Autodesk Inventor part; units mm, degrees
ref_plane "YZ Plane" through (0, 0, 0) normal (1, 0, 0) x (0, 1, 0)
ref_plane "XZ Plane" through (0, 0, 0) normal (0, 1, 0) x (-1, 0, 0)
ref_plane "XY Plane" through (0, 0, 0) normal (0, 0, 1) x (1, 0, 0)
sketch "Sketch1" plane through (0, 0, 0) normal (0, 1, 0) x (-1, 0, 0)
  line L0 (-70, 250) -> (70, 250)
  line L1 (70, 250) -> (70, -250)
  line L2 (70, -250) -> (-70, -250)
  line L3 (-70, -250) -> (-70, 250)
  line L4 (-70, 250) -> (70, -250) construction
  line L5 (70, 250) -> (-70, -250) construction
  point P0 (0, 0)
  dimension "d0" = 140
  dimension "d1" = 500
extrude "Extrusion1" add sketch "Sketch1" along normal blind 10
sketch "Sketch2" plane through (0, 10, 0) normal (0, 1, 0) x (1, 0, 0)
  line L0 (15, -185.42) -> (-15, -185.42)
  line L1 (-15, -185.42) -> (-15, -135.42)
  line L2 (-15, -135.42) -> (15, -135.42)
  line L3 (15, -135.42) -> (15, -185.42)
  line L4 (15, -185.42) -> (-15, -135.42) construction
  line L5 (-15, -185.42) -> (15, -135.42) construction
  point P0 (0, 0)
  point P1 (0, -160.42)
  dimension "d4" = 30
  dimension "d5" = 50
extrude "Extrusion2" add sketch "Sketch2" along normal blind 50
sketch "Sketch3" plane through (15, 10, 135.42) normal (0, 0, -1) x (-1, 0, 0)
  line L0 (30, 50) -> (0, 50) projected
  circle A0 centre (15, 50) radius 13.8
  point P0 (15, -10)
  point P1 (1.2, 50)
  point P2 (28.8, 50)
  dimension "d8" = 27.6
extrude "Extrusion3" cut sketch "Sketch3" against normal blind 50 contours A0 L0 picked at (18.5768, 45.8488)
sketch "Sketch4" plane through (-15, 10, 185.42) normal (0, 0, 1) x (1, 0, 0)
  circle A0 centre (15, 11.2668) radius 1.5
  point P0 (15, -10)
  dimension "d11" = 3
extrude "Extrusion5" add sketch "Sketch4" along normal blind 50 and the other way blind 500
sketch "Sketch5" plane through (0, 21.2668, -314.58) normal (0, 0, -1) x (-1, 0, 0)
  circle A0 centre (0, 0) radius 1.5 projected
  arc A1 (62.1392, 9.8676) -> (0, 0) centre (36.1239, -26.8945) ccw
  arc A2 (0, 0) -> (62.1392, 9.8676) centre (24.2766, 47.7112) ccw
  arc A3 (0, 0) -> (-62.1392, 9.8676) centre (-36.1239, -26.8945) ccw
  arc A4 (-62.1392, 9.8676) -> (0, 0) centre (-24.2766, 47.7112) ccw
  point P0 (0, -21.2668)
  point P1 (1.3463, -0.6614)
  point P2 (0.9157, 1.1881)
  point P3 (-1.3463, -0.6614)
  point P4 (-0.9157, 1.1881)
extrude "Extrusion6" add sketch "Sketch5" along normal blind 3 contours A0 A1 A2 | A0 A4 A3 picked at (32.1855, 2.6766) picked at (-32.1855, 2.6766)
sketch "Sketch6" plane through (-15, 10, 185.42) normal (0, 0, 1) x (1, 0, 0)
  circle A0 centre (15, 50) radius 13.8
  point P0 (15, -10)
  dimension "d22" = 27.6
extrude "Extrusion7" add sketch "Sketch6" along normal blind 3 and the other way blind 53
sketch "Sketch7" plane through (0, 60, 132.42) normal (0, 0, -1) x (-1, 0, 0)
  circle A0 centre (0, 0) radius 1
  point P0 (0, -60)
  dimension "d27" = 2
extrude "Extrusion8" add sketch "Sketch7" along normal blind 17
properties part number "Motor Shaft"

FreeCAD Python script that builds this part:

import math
import FreeCAD as App
import Part
import Sketcher
from FreeCAD import Vector


def add_polygon(sketch, points):
    """Adds a closed chain of lines whose ends are joined by coincident constraints."""
    first, n = sketch.GeometryCount, len(points)
    for a, b in zip(points, points[1:] + points[:1]):
        sketch.addGeometry(Part.LineSegment(App.Vector(*a, 0), App.Vector(*b, 0)), False)
    for i in range(n):
        sketch.addConstraint(Sketcher.Constraint("Coincident", first + i, 2, first + (i + 1) % n, 1))

doc = App.newDocument("Part")
params = doc.addObject("Spreadsheet::Sheet", "Params")
for row, (alias, value) in enumerate([
    ("sketch1_width", "140 mm"),
    ("sketch1_height", "500 mm"),
    ("pad1_length", "10 mm"),
    ("sketch2_width", "30 mm"),
    ("sketch2_height", "50 mm"),
    ("pad2_length", "50 mm"),
    ("sketch3_radius", "13.8 mm"),
    ("pocket1_length", "50 mm"),
    ("sketch4_diameter", "3 mm"),
    ("pad3_length", "50 mm"),
    ("pad3_length2", "500 mm"),
    ("sketch5_radius", "1.5 mm"),
    ("pad4_length", "3 mm"),
    ("sketch6_diameter", "27.6 mm"),
    ("pad5_length", "3 mm"),
    ("pad5_length2", "53 mm"),
    ("sketch7_diameter", "2 mm"),
    ("pad6_length", "17 mm"),
], start=1):
    params.set(f"A{row}", alias)
    params.set(f"B{row}", "=" + value)
    params.setAlias(f"B{row}", alias)

body = doc.addObject("PartDesign::Body", "Body")
body.AllowCompound = True

sketch1 = body.newObject("Sketcher::SketchObject", "Sketch")
sketch1.AttachmentSupport = (doc.getObject("XZ_Plane"), [""])
sketch1.MapMode = "FlatFace"
add_polygon(sketch1, [(-70, 250), (70, 250), (70, -250), (-70, -250)])
sketch1.addConstraint(Sketcher.Constraint("Horizontal", 0))
sketch1.addConstraint(Sketcher.Constraint("Vertical", 1))
sketch1.addConstraint(Sketcher.Constraint("Horizontal", 2))
sketch1.addConstraint(Sketcher.Constraint("Vertical", 3))
sketch1.addConstraint(Sketcher.Constraint("Symmetric", 0, 2, 2, 2, -1, 1))
sketch1.addConstraint(Sketcher.Constraint("DistanceX", 0, 1, 0, 2, 140.0))
sketch1.addConstraint(Sketcher.Constraint("DistanceY", 1, 2, 1, 1, 500.0))
sketch1.setExpression("Constraints[9]", "Params.sketch1_width")
sketch1.setExpression("Constraints[10]", "Params.sketch1_height")
pad1 = body.newObject("PartDesign::Pad", "Pad")
pad1.Profile = sketch1
pad1.setExpression("Length", "Params.pad1_length")
pad1.Reversed = True

sketch2 = body.newObject("Sketcher::SketchObject", "Sketch001")
sketch2.AttachmentSupport = (doc.getObject("XZ_Plane"), [""])
sketch2.MapMode = "FlatFace"
sketch2.AttachmentOffset = App.Placement(Vector(0, 0, -10), App.Rotation())
add_polygon(sketch2, [(-15, 185), (15, 185), (15, 135), (-15, 135)])
sketch2.addConstraint(Sketcher.Constraint("Horizontal", 0))
sketch2.addConstraint(Sketcher.Constraint("Vertical", 1))
sketch2.addConstraint(Sketcher.Constraint("Horizontal", 2))
sketch2.addConstraint(Sketcher.Constraint("Vertical", 3))
sketch2.addConstraint(Sketcher.Constraint("DistanceX", 0, 1, 0, 2, 30.0))
sketch2.addConstraint(Sketcher.Constraint("DistanceY", 1, 2, 1, 1, 50.0))
sketch2.addConstraint(Sketcher.Constraint("DistanceX", -1, 1, 0, 2, 15.0))
sketch2.addConstraint(Sketcher.Constraint("DistanceY", -1, 1, 0, 2, 185.42))
sketch2.setExpression("Constraints[8]", "Params.sketch2_width")
sketch2.setExpression("Constraints[9]", "Params.sketch2_height")
pad2 = body.newObject("PartDesign::Pad", "Pad001")
pad2.Profile = sketch2
pad2.setExpression("Length", "Params.pad2_length")
pad2.Reversed = True

sketch3 = body.newObject("Sketcher::SketchObject", "Sketch002")
sketch3.AttachmentSupport = (doc.getObject("XY_Plane"), [""])
sketch3.MapMode = "FlatFace"
sketch3.AttachmentOffset = App.Placement(Vector(0, 0, 135.42), App.Rotation())
sketch3.addGeometry(Part.ArcOfCircle(Part.Circle(Vector(0, 60, 0), Vector(0, 0, 1), 14), math.radians(180), math.radians(360)), False)
sketch3.addGeometry(Part.LineSegment(Vector(-14, 60, 0), Vector(14, 60, 0)), False)
sketch3.addConstraint(Sketcher.Constraint("Coincident", 0, 1, 1, 1))
sketch3.addConstraint(Sketcher.Constraint("Coincident", 1, 2, 0, 2))
sketch3.addConstraint(Sketcher.Constraint("Horizontal", 1))
sketch3.addConstraint(Sketcher.Constraint("PointOnObject", 0, 3, -2))
sketch3.addConstraint(Sketcher.Constraint("Radius", 0, 13.8))
sketch3.addConstraint(Sketcher.Constraint("DistanceY", -1, 1, 0, 3, 60.0))
sketch3.addConstraint(Sketcher.Constraint("DistanceY", -1, 1, 0, 1, 60.0))
sketch3.setExpression("Constraints[4]", "Params.sketch3_radius")
pocket1 = body.newObject("PartDesign::Pocket", "Pocket")
pocket1.Profile = sketch3
pocket1.setExpression("Length", "Params.pocket1_length")
pocket1.Reversed = True

sketch4 = body.newObject("Sketcher::SketchObject", "Sketch003")
sketch4.AttachmentSupport = (doc.getObject("XY_Plane"), [""])
sketch4.MapMode = "FlatFace"
sketch4.AttachmentOffset = App.Placement(Vector(0, 0, 185.42), App.Rotation())
sketch4.addGeometry(Part.Circle(Vector(0, 21.3, 0), Vector(0, 0, 1), 1.5), False)
sketch4.addConstraint(Sketcher.Constraint("PointOnObject", 0, 3, -2))
sketch4.addConstraint(Sketcher.Constraint("Diameter", 0, 3.0))
sketch4.addConstraint(Sketcher.Constraint("DistanceY", -1, 1, 0, 3, 21.2668))
sketch4.setExpression("Constraints[1]", "Params.sketch4_diameter")
pad3 = body.newObject("PartDesign::Pad", "Pad002")
pad3.Profile = sketch4
pad3.Type = "TwoLengths"
pad3.setExpression("Length", "Params.pad3_length")
pad3.setExpression("Length2", "Params.pad3_length2")

sketch5 = body.newObject("Sketcher::SketchObject", "Sketch004")
sketch5.AttachmentSupport = (doc.getObject("XY_Plane"), [""])
sketch5.MapMode = "FlatFace"
sketch5.AttachmentOffset = App.Placement(Vector(0, 0, -314.58), App.Rotation())
sketch5.addGeometry(Part.ArcOfCircle(Part.Circle(Vector(0, 21.3, 0), Vector(0, 0, 1), 1.5), math.radians(128), math.radians(206)), False)
sketch5.addGeometry(Part.ArcOfCircle(Part.Circle(Vector(-24.3, 69, 0), Vector(0, 0, 1), 53.5), math.radians(-135), math.radians(-65)), False)
sketch5.addGeometry(Part.ArcOfCircle(Part.Circle(Vector(-36.1, -5.6, 0), Vector(0, 0, 1), 45), math.radians(39), math.radians(125)), False)
sketch5.addGeometry(Part.ArcOfCircle(Part.Circle(Vector(0, 21.3, 0), Vector(0, 0, 1), 1.5), math.radians(-26), math.radians(52)), False)
sketch5.addGeometry(Part.ArcOfCircle(Part.Circle(Vector(36.1, -5.6, 0), Vector(0, 0, 1), 45), math.radians(55), math.radians(141)), False)
sketch5.addGeometry(Part.ArcOfCircle(Part.Circle(Vector(24.3, 69, 0), Vector(0, 0, 1), 53.5), math.radians(-115), math.radians(-45)), False)
sketch5.addConstraint(Sketcher.Constraint("Coincident", 0, 2, 1, 2))
sketch5.addConstraint(Sketcher.Constraint("Coincident", 1, 1, 2, 2))
sketch5.addConstraint(Sketcher.Constraint("Coincident", 2, 1, 0, 1))
sketch5.addConstraint(Sketcher.Constraint("Coincident", 3, 2, 4, 2))
sketch5.addConstraint(Sketcher.Constraint("Coincident", 4, 1, 5, 2))
sketch5.addConstraint(Sketcher.Constraint("Coincident", 5, 1, 3, 1))
sketch5.addConstraint(Sketcher.Constraint("Coincident", 3, 3, 0, 3))
sketch5.addConstraint(Sketcher.Constraint("Equal", 0, 3))
sketch5.addConstraint(Sketcher.Constraint("Equal", 2, 4))
sketch5.addConstraint(Sketcher.Constraint("Equal", 1, 5))
sketch5.addConstraint(Sketcher.Constraint("Symmetric", 2, 3, 4, 3, -2))
sketch5.addConstraint(Sketcher.Constraint("Symmetric", 1, 3, 5, 3, -2))
sketch5.addConstraint(Sketcher.Constraint("PointOnObject", 0, 3, -2))
sketch5.addConstraint(Sketcher.Constraint("Radius", 0, 1.5))
sketch5.addConstraint(Sketcher.Constraint("Radius", 2, 45.036))
sketch5.addConstraint(Sketcher.Constraint("Radius", 1, 53.5323))
sketch5.addConstraint(Sketcher.Constraint("DistanceY", -1, 1, 1, 3, 68.978))
sketch5.addConstraint(Sketcher.Constraint("DistanceX", 2, 3, -1, 1, 36.124))
sketch5.addConstraint(Sketcher.Constraint("DistanceY", -1, 1, 3, 2, 22.455))
sketch5.addConstraint(Sketcher.Constraint("DistanceY", 2, 3, 0, 2, 26.233))
sketch5.addConstraint(Sketcher.Constraint("DistanceY", 2, 3, 1, 1, 36.762))
sketch5.setExpression("Constraints[13]", "Params.sketch5_radius")
pad4 = body.newObject("PartDesign::Pad", "Pad003")
pad4.Profile = sketch5
pad4.setExpression("Length", "Params.pad4_length")
pad4.Reversed = True

sketch6 = body.newObject("Sketcher::SketchObject", "Sketch005")
sketch6.AttachmentSupport = (doc.getObject("XY_Plane"), [""])
sketch6.MapMode = "FlatFace"
sketch6.AttachmentOffset = App.Placement(Vector(0, 0, 185.42), App.Rotation())
sketch6.addGeometry(Part.Circle(Vector(0, 60, 0), Vector(0, 0, 1), 14), False)
sketch6.addConstraint(Sketcher.Constraint("PointOnObject", 0, 3, -2))
sketch6.addConstraint(Sketcher.Constraint("Diameter", 0, 27.6))
sketch6.addConstraint(Sketcher.Constraint("DistanceY", -1, 1, 0, 3, 60.0))
sketch6.setExpression("Constraints[1]", "Params.sketch6_diameter")
pad5 = body.newObject("PartDesign::Pad", "Pad004")
pad5.Profile = sketch6
pad5.Type = "TwoLengths"
pad5.setExpression("Length", "Params.pad5_length")
pad5.setExpression("Length2", "Params.pad5_length2")

sketch7 = body.newObject("Sketcher::SketchObject", "Sketch006")
sketch7.AttachmentSupport = (doc.getObject("XY_Plane"), [""])
sketch7.MapMode = "FlatFace"
sketch7.AttachmentOffset = App.Placement(Vector(0, 0, 132.42), App.Rotation())
sketch7.addGeometry(Part.Circle(Vector(0, 60, 0), Vector(0, 0, 1), 1), False)
sketch7.addConstraint(Sketcher.Constraint("PointOnObject", 0, 3, -2))
sketch7.addConstraint(Sketcher.Constraint("Diameter", 0, 2.0))
sketch7.addConstraint(Sketcher.Constraint("DistanceY", -1, 1, 0, 3, 60.0))
sketch7.setExpression("Constraints[1]", "Params.sketch7_diameter")
pad6 = body.newObject("PartDesign::Pad", "Pad005")
pad6.Profile = sketch7
pad6.setExpression("Length", "Params.pad6_length")
pad6.Reversed = True

doc.recompute()
